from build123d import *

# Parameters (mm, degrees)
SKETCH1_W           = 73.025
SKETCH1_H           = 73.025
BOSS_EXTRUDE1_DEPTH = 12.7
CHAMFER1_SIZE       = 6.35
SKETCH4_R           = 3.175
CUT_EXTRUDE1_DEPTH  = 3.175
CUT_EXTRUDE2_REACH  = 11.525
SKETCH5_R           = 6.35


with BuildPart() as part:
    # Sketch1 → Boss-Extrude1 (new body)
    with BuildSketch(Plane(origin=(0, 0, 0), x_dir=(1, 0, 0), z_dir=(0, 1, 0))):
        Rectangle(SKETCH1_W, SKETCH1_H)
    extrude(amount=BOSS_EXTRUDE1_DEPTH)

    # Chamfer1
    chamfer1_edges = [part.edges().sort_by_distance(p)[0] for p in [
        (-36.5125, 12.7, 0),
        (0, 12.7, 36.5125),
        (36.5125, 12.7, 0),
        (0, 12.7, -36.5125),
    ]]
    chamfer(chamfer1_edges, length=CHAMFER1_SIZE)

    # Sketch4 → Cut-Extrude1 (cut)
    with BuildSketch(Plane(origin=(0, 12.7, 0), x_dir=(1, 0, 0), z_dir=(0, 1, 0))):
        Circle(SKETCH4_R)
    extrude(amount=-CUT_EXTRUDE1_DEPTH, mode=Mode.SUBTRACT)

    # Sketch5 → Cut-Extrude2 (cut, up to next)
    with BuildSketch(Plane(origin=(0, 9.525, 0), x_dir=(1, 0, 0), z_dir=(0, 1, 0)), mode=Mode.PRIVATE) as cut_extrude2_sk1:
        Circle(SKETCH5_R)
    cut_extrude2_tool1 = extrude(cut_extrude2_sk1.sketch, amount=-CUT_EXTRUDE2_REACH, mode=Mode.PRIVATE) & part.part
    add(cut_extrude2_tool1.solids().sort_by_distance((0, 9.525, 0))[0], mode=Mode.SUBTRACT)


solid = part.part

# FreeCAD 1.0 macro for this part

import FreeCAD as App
import Part
import Sketcher
Q = App.Units.Quantity


def edges_at(feature, points):
    """Names of the edges that pass closest to the given points."""
    edges = feature.Shape.Edges
    near = lambda p: min(range(len(edges)), key=lambda i: edges[i].distToShape(Part.Vertex(*p))[0])
    return sorted({f"Edge{near(p) + 1}" for p in points})

doc = App.newDocument("Part")
body = doc.addObject("PartDesign::Body", "Body")

sketch1 = body.newObject("Sketcher::SketchObject", "Sketch")
sketch1.AttachmentSupport = (doc.getObject("XZ_Plane"), [""])
sketch1.MapMode = "FlatFace"
sketch1.addGeometry(Part.LineSegment(App.Vector(-37, -37, 0), App.Vector(-37, 37, 0)), False)
sketch1.addGeometry(Part.LineSegment(App.Vector(-37, 37, 0), App.Vector(37, 37, 0)), False)
sketch1.addGeometry(Part.LineSegment(App.Vector(37, 37, 0), App.Vector(37, -37, 0)), False)
sketch1.addGeometry(Part.LineSegment(App.Vector(37, -37, 0), App.Vector(-37, -37, 0)), False)
sketch1.addConstraint(Sketcher.Constraint("Coincident", 0, 2, 1, 1))
sketch1.addConstraint(Sketcher.Constraint("Coincident", 1, 2, 2, 1))
sketch1.addConstraint(Sketcher.Constraint("Coincident", 2, 2, 3, 1))
sketch1.addConstraint(Sketcher.Constraint("Coincident", 3, 2, 0, 1))
sketch1.addConstraint(Sketcher.Constraint("Vertical", 0))
sketch1.addConstraint(Sketcher.Constraint("Horizontal", 1))
sketch1.addConstraint(Sketcher.Constraint("Vertical", 2))
sketch1.addConstraint(Sketcher.Constraint("Horizontal", 3))
sketch1.addConstraint(Sketcher.Constraint("Symmetric", 0, 2, 2, 2, -1, 1))
sketch1.addConstraint(Sketcher.Constraint("Equal", 3, 0))
sketch1.addConstraint(Sketcher.Constraint("DistanceX", 1, 1, 1, 2, Q("2.875 in")))
pad1 = body.newObject("PartDesign::Pad", "Pad")
pad1.Profile = sketch1
pad1.Length = Q("0.5 in")
pad1.Reversed = True
doc.recompute()

chamfer = body.newObject("PartDesign::Chamfer", "Chamfer")
chamfer.Base = (pad1, edges_at(pad1, [
    (-36.513, 12.7, 0),
    (0, 12.7, 36.513),
    (36.513, 12.7, 0),
    (0, 12.7, -36.513),
]))
chamfer.Size = Q("0.25 in")

sketch2 = body.newObject("Sketcher::SketchObject", "Sketch001")
sketch2.AttachmentSupport = (doc.getObject("XZ_Plane"), [""])
sketch2.MapMode = "FlatFace"
sketch2.AttachmentOffset = App.Placement(App.Vector(0, 0, -0.5 * 25.4), App.Rotation())
sketch2.addGeometry(Part.Circle(App.Vector(0, 0, 0), App.Vector(0, 0, 1), 3.2), False)
sketch2.addConstraint(Sketcher.Constraint("Coincident", 0, 3, -1, 1))
sketch2.addConstraint(Sketcher.Constraint("Diameter", 0, Q("0.25 in")))
pocket1 = body.newObject("PartDesign::Pocket", "Pocket")
pocket1.Profile = sketch2
pocket1.Length = Q("0.125 in")
pocket1.Reversed = True

sketch3 = body.newObject("Sketcher::SketchObject", "Sketch002")
sketch3.AttachmentSupport = (doc.getObject("XZ_Plane"), [""])
sketch3.MapMode = "FlatFace"
sketch3.AttachmentOffset = App.Placement(App.Vector(0, 0, -0.375 * 25.4), App.Rotation())
sketch3.addGeometry(Part.Circle(App.Vector(0, 0, 0), App.Vector(0, 0, 1), 6), False)
sketch3.addConstraint(Sketcher.Constraint("Coincident", 0, 3, -1, 1))
sketch3.addConstraint(Sketcher.Constraint("Diameter", 0, Q("0.5 in")))
pocket2 = body.newObject("PartDesign::Pocket", "Pocket001")
pocket2.Profile = sketch3
pocket2.Type = "UpToFirst"
pocket2.Reversed = True

doc.recompute()
